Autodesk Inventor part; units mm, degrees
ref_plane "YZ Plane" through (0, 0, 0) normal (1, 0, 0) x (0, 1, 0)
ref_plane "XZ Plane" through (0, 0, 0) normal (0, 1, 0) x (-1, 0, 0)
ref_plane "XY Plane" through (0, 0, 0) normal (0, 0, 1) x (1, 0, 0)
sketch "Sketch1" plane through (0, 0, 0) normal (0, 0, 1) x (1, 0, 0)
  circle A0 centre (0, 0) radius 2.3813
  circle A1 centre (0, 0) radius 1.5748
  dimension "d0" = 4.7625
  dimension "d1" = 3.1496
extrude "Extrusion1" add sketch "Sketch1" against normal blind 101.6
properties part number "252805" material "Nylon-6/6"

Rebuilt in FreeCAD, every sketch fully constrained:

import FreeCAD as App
import Part
import Sketcher
from FreeCAD import Vector
Q = App.Units.Quantity

doc = App.newDocument("Part")
body = doc.addObject("PartDesign::Body", "Body")

# Sketch on XY plane
sketch1 = doc.addObject("Sketcher::SketchObject", "Sketch")
body.addObject(sketch1)
sketch1.AttachmentSupport = (doc.XY_Plane, [""])
sketch1.MapMode = "FlatFace"
sketch1.addGeometry(Part.Circle(Vector(0, 0, 0), Vector(0, 0, 1), 2.3813), False)
sketch1.addGeometry(Part.Circle(Vector(0, 0, 0), Vector(0, 0, 1), 1.5748), False)
sketch1.addConstraint(Sketcher.Constraint("Coincident", 0, 3, -1, 1))
sketch1.addConstraint(Sketcher.Constraint("Coincident", 1, 3, -1, 1))
sketch1.addConstraint(Sketcher.Constraint("Diameter", 0, Q("0.1875 in")))
sketch1.addConstraint(Sketcher.Constraint("Diameter", 1, Q("0.124 in")))
pad1 = doc.addObject("PartDesign::Pad", "Pad")
body.addObject(pad1)
pad1.Profile = sketch1
pad1.Length = Q("4 in")
pad1.Reversed = True

doc.recompute()
